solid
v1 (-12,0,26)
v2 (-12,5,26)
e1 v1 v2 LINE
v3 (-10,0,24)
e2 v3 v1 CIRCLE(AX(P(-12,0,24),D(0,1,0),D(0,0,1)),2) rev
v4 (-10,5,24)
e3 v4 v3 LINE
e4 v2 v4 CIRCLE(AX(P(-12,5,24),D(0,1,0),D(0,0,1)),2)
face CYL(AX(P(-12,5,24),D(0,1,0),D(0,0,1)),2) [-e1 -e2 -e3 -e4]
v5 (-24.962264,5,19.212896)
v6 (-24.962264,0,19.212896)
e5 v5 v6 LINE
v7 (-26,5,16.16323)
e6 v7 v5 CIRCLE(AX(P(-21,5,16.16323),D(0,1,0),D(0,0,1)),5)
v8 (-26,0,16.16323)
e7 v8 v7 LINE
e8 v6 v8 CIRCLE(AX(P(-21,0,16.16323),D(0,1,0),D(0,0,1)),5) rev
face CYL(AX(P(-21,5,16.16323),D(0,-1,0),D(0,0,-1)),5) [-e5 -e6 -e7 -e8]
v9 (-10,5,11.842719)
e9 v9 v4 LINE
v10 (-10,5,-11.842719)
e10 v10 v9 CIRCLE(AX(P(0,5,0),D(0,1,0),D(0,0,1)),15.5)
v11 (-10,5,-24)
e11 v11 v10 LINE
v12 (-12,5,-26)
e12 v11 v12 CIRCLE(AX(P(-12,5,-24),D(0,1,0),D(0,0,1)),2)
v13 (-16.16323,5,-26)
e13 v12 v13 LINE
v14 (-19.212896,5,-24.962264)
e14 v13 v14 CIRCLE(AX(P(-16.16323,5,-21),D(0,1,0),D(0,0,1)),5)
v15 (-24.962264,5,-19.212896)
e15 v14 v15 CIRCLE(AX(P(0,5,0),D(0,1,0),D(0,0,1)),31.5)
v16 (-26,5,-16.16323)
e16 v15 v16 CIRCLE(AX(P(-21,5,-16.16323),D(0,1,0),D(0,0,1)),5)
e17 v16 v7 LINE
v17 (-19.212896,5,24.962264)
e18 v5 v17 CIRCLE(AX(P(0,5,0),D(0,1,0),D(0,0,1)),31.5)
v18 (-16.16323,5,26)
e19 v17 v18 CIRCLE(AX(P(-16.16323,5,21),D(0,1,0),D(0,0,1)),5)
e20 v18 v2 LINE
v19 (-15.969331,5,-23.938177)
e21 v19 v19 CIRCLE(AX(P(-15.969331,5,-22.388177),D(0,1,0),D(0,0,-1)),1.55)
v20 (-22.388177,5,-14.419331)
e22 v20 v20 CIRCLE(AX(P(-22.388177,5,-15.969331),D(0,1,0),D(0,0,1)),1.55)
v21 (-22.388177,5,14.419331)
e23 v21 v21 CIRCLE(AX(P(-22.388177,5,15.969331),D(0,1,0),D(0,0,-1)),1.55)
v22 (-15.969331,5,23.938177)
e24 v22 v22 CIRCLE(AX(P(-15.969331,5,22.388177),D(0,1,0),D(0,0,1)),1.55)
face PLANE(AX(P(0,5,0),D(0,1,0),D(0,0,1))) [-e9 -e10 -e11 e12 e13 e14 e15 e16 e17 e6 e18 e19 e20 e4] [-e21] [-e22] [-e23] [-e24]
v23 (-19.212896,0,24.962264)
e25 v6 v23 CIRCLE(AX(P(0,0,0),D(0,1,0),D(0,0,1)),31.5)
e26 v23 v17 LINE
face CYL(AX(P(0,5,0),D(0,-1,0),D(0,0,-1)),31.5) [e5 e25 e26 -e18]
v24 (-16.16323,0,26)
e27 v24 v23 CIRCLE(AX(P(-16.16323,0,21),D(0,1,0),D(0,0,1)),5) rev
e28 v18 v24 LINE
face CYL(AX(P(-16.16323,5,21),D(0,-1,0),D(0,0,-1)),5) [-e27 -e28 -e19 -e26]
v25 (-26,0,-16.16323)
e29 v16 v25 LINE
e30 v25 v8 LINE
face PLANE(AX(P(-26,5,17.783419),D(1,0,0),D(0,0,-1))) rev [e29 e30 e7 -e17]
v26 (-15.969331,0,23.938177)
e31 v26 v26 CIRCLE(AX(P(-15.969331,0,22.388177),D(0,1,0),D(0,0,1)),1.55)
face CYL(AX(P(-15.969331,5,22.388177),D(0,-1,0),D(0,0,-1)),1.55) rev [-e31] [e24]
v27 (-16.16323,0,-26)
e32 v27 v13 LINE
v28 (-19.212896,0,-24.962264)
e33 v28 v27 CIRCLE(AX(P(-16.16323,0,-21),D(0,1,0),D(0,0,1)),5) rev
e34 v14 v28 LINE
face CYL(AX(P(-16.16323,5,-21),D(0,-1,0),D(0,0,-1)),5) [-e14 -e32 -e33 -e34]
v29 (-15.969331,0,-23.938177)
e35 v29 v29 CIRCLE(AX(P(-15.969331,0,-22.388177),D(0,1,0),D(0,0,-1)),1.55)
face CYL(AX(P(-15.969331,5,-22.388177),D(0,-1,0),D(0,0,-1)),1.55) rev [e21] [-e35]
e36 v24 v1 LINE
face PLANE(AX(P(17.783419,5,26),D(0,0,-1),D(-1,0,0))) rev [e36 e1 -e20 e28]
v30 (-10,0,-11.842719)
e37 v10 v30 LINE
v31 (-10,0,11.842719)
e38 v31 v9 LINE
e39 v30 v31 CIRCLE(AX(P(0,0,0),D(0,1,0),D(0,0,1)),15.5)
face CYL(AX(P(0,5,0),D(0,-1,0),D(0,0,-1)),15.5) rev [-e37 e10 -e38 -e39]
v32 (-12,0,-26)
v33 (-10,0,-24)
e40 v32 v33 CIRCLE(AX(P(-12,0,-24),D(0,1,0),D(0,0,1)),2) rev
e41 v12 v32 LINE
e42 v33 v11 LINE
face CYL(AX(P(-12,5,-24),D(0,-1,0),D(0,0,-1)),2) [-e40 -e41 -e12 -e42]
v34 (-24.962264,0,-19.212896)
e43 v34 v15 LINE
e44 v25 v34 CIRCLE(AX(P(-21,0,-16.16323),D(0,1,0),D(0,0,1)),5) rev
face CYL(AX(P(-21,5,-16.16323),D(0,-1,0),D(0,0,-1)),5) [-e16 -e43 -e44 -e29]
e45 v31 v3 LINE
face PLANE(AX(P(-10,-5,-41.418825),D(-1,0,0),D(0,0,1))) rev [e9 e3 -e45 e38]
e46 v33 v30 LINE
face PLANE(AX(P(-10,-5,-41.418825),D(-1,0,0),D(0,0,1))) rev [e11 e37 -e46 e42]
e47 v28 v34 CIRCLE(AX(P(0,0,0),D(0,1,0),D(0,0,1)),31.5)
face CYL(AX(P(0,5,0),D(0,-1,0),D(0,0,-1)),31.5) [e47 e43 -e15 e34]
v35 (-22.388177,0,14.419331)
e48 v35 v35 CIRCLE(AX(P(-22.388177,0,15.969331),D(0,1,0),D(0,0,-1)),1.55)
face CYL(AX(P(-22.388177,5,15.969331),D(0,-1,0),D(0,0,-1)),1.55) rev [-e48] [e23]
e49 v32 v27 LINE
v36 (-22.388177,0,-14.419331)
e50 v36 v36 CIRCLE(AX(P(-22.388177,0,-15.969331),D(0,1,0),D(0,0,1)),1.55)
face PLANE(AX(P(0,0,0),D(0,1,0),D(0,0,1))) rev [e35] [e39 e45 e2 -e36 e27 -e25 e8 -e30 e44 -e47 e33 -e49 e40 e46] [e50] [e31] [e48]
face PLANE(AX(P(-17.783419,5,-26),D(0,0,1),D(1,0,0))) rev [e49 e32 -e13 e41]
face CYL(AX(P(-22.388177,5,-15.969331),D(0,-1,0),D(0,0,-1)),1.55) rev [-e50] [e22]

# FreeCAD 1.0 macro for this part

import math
import FreeCAD as App
import Part
import Sketcher

V = App.Vector


def edges_at(feature, points):
    """Names of the edges that pass closest to the given points."""
    edges = feature.Shape.Edges
    near = lambda p: min(range(len(edges)), key=lambda i: edges[i].distToShape(Part.Vertex(*p))[0])
    return sorted({f"Edge{near(p) + 1}" for p in points})


def add_polygon(sketch, points):
    """Adds a closed chain of lines whose ends are joined by coincident constraints."""
    first, n = sketch.GeometryCount, len(points)
    for a, b in zip(points, points[1:] + points[:1]):
        sketch.addGeometry(Part.LineSegment(App.Vector(*a, 0), App.Vector(*b, 0)), False)
    for i in range(n):
        sketch.addConstraint(Sketcher.Constraint("Coincident", first + i, 2, first + (i + 1) % n, 1))

doc = App.newDocument("Part")
params = doc.addObject("Spreadsheet::Sheet", "Params")
for row, (alias, value) in enumerate([
    ("sketch1_diameter", "31 mm"),
    ("sketch1_diameter2", "3.1 mm"),
    ("sketch1_radius", "31.5 mm"),
    ("pad1_length", "5 mm"),
    ("pocket1_length", "10 mm"),
    ("fillet_radius", "2 mm"),
    ("fillet2_radius", "5 mm"),
], start=1):
    params.set(f"A{row}", alias)
    params.set(f"B{row}", "=" + value)
    params.setAlias(f"B{row}", alias)

body = doc.addObject("PartDesign::Body", "Body")

# Sketch on XZ plane
sketch1 = doc.addObject("Sketcher::SketchObject", "Sketch")
body.addObject(sketch1)
sketch1.AttachmentSupport = (doc.XZ_Plane, [""])
sketch1.MapMode = "FlatFace"
sketch1.addGeometry([
    Part.LineSegment(V(17.8, -26, 0), V(-17.8, -26, 0)),  # 0
    Part.ArcOfCircle(Part.Circle(V(0, 0, 0), V(0, 0, 1), 31.5), math.radians(-146), math.radians(-124)),  # 1
    Part.LineSegment(V(-26, -17.8, 0), V(-26, 17.8, 0)),  # 2
    Part.ArcOfCircle(Part.Circle(V(0, 0, 0), V(0, 0, 1), 31.5), math.radians(124), math.radians(146)),  # 3
    Part.LineSegment(V(-17.8, 26, 0), V(17.8, 26, 0)),  # 4
    Part.ArcOfCircle(Part.Circle(V(0, 0, 0), V(0, 0, 1), 31.5), math.radians(34), math.radians(56)),  # 5
    Part.LineSegment(V(26, 17.8, 0), V(26, -17.8, 0)),  # 6
    Part.ArcOfCircle(Part.Circle(V(0, 0, 0), V(0, 0, 1), 31.5), math.radians(-56), math.radians(-34)),  # 7
    Part.Circle(V(16, 22.4, 0), V(0, 0, 1), 1.6),  # 8
    Part.Circle(V(22.4, 16, 0), V(0, 0, 1), 1.6),  # 9
    Part.Circle(V(-16, 22.4, 0), V(0, 0, 1), 1.6),  # 10
    Part.Circle(V(-22.4, 16, 0), V(0, 0, 1), 1.6),  # 11
    Part.Circle(V(22.4, -16, 0), V(0, 0, 1), 1.6),  # 12
    Part.Circle(V(16, -22.4, 0), V(0, 0, 1), 1.6),  # 13
    Part.Circle(V(0, 0, 0), V(0, 0, 1), 15.5),  # 14
    Part.Circle(V(-22.4, -16, 0), V(0, 0, 1), 1.6),  # 15
    Part.Circle(V(-16, -22.4, 0), V(0, 0, 1), 1.6),  # 16
], False)
sketch1.addConstraint([
    Sketcher.Constraint("Coincident", 0, 2, 1, 2),
    Sketcher.Constraint("Coincident", 1, 1, 2, 1),
    Sketcher.Constraint("Coincident", 2, 2, 3, 2),
    Sketcher.Constraint("Coincident", 3, 1, 4, 1),
    Sketcher.Constraint("Coincident", 4, 2, 5, 2),
    Sketcher.Constraint("Coincident", 5, 1, 6, 1),
    Sketcher.Constraint("Coincident", 6, 2, 7, 2),
    Sketcher.Constraint("Coincident", 7, 1, 0, 1),
    Sketcher.Constraint("Horizontal", 0),
    Sketcher.Constraint("Vertical", 2),
    Sketcher.Constraint("Horizontal", 4),
    Sketcher.Constraint("Vertical", 6),
    Sketcher.Constraint("Coincident", 1, 3, -1, 1),
    Sketcher.Constraint("Coincident", 3, 3, -1, 1),
    Sketcher.Constraint("Coincident", 5, 3, -1, 1),
    Sketcher.Constraint("Coincident", 7, 3, -1, 1),
    Sketcher.Constraint("Coincident", 14, 3, -1, 1),
    Sketcher.Constraint("Equal", 1, 3),
    Sketcher.Constraint("Equal", 3, 5),
    Sketcher.Constraint("Equal", 5, 7),
    Sketcher.Constraint("Equal", 8, 9),
    Sketcher.Constraint("Equal", 9, 10),
    Sketcher.Constraint("Equal", 10, 11),
    Sketcher.Constraint("Equal", 11, 12),
    Sketcher.Constraint("Equal", 12, 13),
    Sketcher.Constraint("Equal", 13, 15),
    Sketcher.Constraint("Equal", 15, 16),
    Sketcher.Constraint("Symmetric", 11, 3, 12, 3, -1, 1),
    Sketcher.Constraint("Symmetric", 10, 3, 13, 3, -1, 1),
    Sketcher.Constraint("Symmetric", 9, 3, 15, 3, -1, 1),
    Sketcher.Constraint("Symmetric", 8, 3, 16, 3, -1, 1),
    Sketcher.Constraint("Symmetric", 8, 3, 10, 3, -2),
    Sketcher.Constraint("Symmetric", 9, 3, 11, 3, -2),
    Sketcher.Constraint("Horizontal", 2, 2, 5, 1),
    Sketcher.Constraint("Vertical", 0, 2, 3, 1),
    Sketcher.Constraint("Equal", 4, 2),
    Sketcher.Constraint("Diameter", 14, 31.0),
    Sketcher.Constraint("Diameter", 8, 3.1),
    Sketcher.Constraint("Radius", 1, 31.5),
    Sketcher.Constraint("DistanceY", 0, 2, -1, 1, 26.0),
    Sketcher.Constraint("DistanceX", -1, 1, 8, 3, 15.969331),
    Sketcher.Constraint("DistanceY", -1, 1, 9, 3, 15.969331),
    Sketcher.Constraint("DistanceY", -1, 1, 8, 3, 22.388177),
    Sketcher.Constraint("DistanceX", -1, 1, 9, 3, 22.388177),
])
sketch1.setExpression("Constraints[36]", "Params.sketch1_diameter")
sketch1.setExpression("Constraints[37]", "Params.sketch1_diameter2")
sketch1.setExpression("Constraints[38]", "Params.sketch1_radius")
pad1 = doc.addObject("PartDesign::Pad", "Pad")
body.addObject(pad1)
pad1.Profile = sketch1
pad1.setExpression("Length", "Params.pad1_length")
pad1.Reversed = True

# Sketch on XZ plane
sketch2 = doc.addObject("Sketcher::SketchObject", "Sketch001")
body.addObject(sketch2)
sketch2.AttachmentSupport = (doc.XZ_Plane, [""])
sketch2.MapMode = "FlatFace"
sketch2.AttachmentOffset = App.Placement(V(0, 0, -5), App.Rotation())
add_polygon(sketch2, [(-10, -41), (-10, 30), (35, 30), (35, -41)])  # lines 0-3
sketch2.addConstraint([
    Sketcher.Constraint("Vertical", 0),
    Sketcher.Constraint("Horizontal", 1),
    Sketcher.Constraint("Vertical", 2),
    Sketcher.Constraint("Horizontal", 3),
    Sketcher.Constraint("DistanceX", 0, 2, -1, 1, 10.0),
    Sketcher.Constraint("DistanceX", 1, 1, 1, 2, 44.726871),
    Sketcher.Constraint("DistanceY", 0, 1, 0, 2, 71.780777),
    Sketcher.Constraint("DistanceY", -1, 1, 0, 2, 30.361952),
])
pocket1 = doc.addObject("PartDesign::Pocket", "Pocket")
body.addObject(pocket1)
pocket1.Profile = sketch2
pocket1.setExpression("Length", "Params.pocket1_length")
pocket1.Reversed = True
doc.recompute()

fillet = doc.addObject("PartDesign::Fillet", "Fillet")
body.addObject(fillet)
fillet.Base = (pocket1, edges_at(pocket1, [(-10, 2.5, -26), (-10, 2.5, 26)]))
fillet.setExpression("Radius", "Params.fillet_radius")
doc.recompute()

fillet2 = doc.addObject("PartDesign::Fillet", "Fillet001")
body.addObject(fillet2)
fillet2.Base = (fillet, edges_at(fillet, [
    (-17.783, 2.5, -26),
    (-17.783, 2.5, 26),
    (-26, 2.5, 17.783),
    (-26, 2.5, -17.783),
]))
fillet2.setExpression("Radius", "Params.fillet2_radius")

doc.recompute()
